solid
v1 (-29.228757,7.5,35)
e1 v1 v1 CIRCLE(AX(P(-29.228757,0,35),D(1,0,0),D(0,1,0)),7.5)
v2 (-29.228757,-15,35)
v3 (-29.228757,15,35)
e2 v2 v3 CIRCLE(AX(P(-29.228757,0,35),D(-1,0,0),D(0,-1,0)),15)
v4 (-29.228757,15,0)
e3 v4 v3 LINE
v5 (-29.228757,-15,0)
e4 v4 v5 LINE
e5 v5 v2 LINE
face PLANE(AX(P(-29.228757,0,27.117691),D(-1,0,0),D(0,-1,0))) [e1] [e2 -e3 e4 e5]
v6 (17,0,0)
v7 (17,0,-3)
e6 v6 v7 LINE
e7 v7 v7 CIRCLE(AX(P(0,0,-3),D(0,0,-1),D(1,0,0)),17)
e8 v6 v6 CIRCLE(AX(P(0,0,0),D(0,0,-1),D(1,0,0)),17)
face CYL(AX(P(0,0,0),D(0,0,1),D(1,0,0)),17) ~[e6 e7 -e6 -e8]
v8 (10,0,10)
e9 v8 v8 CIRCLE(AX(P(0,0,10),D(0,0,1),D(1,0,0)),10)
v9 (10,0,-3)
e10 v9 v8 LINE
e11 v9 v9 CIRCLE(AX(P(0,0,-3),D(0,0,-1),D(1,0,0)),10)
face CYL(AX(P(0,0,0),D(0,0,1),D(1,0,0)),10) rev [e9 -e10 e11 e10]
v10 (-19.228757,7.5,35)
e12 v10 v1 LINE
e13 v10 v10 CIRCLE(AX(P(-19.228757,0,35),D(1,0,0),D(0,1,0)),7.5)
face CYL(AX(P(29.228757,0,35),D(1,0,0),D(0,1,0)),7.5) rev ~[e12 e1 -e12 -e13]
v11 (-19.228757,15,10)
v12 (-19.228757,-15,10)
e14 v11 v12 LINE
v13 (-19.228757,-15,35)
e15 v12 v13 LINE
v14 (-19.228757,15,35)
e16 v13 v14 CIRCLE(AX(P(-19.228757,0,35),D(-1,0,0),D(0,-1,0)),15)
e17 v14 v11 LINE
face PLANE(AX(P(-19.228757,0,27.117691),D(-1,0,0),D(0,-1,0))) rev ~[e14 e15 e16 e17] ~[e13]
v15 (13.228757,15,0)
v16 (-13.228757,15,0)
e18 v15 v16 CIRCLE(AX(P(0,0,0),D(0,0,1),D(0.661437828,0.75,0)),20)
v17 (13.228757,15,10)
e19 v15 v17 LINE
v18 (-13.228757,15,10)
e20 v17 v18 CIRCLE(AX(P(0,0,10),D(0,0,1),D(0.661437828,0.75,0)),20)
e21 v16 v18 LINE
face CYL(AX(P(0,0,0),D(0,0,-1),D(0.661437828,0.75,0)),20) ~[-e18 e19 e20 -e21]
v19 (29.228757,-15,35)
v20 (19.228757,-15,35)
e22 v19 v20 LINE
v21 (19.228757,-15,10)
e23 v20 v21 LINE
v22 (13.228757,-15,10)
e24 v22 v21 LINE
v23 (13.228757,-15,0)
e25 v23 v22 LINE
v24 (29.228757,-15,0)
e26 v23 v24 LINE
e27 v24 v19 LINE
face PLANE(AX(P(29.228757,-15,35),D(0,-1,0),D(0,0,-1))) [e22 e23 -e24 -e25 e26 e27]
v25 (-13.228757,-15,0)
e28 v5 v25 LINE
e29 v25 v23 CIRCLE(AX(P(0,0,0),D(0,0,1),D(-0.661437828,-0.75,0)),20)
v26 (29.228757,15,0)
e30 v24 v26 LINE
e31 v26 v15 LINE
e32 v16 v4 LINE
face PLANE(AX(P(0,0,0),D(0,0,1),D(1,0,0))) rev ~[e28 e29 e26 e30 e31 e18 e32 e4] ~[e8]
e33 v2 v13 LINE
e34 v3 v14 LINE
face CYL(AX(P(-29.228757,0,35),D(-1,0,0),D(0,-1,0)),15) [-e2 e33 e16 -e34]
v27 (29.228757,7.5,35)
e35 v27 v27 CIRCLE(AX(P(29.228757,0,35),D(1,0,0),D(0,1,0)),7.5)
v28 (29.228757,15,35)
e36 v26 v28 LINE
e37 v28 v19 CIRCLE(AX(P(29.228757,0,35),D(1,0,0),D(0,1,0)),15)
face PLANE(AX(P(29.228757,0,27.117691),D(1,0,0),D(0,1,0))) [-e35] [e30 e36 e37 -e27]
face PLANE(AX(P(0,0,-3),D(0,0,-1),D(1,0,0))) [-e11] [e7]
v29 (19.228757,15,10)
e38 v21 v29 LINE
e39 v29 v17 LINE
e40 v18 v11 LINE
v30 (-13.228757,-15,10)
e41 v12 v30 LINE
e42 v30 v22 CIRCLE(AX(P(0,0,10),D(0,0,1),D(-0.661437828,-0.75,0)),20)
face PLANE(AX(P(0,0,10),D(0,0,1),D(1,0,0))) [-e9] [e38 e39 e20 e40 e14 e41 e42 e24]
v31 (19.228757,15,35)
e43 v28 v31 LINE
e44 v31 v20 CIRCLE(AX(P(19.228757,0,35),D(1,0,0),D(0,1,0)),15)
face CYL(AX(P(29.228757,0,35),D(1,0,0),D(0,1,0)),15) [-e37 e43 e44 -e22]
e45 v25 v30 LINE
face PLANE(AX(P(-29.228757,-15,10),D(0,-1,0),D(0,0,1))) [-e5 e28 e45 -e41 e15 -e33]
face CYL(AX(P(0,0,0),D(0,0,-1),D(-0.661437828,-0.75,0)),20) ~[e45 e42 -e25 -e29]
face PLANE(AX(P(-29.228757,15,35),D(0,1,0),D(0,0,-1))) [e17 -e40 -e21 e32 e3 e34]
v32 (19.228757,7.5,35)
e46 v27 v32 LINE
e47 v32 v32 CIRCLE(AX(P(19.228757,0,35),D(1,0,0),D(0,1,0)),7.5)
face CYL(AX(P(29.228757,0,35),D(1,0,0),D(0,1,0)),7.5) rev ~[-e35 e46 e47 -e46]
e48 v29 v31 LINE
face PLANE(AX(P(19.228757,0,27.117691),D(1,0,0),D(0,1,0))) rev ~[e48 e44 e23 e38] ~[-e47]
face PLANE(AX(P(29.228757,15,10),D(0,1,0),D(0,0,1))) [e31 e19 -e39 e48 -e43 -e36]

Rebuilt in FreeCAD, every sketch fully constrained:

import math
import FreeCAD as App
import Part
import Sketcher
from FreeCAD import Vector
Q = App.Units.Quantity

doc = App.newDocument("Part")
body = doc.addObject("PartDesign::Body", "Body")

# Sketch on XY plane
sketch1 = doc.addObject("Sketcher::SketchObject", "Sketch")
body.addObject(sketch1)
sketch1.AttachmentSupport = (doc.XY_Plane, [""])
sketch1.MapMode = "FlatFace"
sketch1.addGeometry(Part.LineSegment(Vector(-29.228757, 15, 0), Vector(-29.228757, -15, 0)), False)
sketch1.addGeometry(Part.LineSegment(Vector(-29.228757, -15, 0), Vector(-13.228757, -15, 0)), False)
sketch1.addGeometry(Part.ArcOfCircle(Part.Circle(Vector(0, 0, 0), Vector(0, 0, 1), 20), math.radians(-131.409622), math.radians(-48.590378)), False)
sketch1.addGeometry(Part.LineSegment(Vector(13.228757, -15, 0), Vector(29.228757, -15, 0)), False)
sketch1.addGeometry(Part.LineSegment(Vector(29.228757, -15, 0), Vector(29.228757, 15, 0)), False)
sketch1.addGeometry(Part.LineSegment(Vector(29.228757, 15, 0), Vector(13.228757, 15, 0)), False)
sketch1.addGeometry(Part.ArcOfCircle(Part.Circle(Vector(0, 0, 0), Vector(0, 0, 1), 20), math.radians(48.590378), math.radians(131.409622)), False)
sketch1.addGeometry(Part.LineSegment(Vector(-13.228757, 15, 0), Vector(-29.228757, 15, 0)), False)
sketch1.addConstraint(Sketcher.Constraint("Coincident", 0, 2, 1, 1))
sketch1.addConstraint(Sketcher.Constraint("Coincident", 1, 2, 2, 1))
sketch1.addConstraint(Sketcher.Constraint("Coincident", 2, 2, 3, 1))
sketch1.addConstraint(Sketcher.Constraint("Coincident", 3, 2, 4, 1))
sketch1.addConstraint(Sketcher.Constraint("Coincident", 4, 2, 5, 1))
sketch1.addConstraint(Sketcher.Constraint("Coincident", 5, 2, 6, 1))
sketch1.addConstraint(Sketcher.Constraint("Coincident", 6, 2, 7, 1))
sketch1.addConstraint(Sketcher.Constraint("Coincident", 7, 2, 0, 1))
sketch1.addConstraint(Sketcher.Constraint("Vertical", 0))
sketch1.addConstraint(Sketcher.Constraint("Horizontal", 1))
sketch1.addConstraint(Sketcher.Constraint("Horizontal", 3))
sketch1.addConstraint(Sketcher.Constraint("Vertical", 4))
sketch1.addConstraint(Sketcher.Constraint("Horizontal", 5))
sketch1.addConstraint(Sketcher.Constraint("Horizontal", 7))
sketch1.addConstraint(Sketcher.Constraint("Coincident", 2, 3, -1, 1))
sketch1.addConstraint(Sketcher.Constraint("Coincident", 6, 3, -1, 1))
sketch1.addConstraint(Sketcher.Constraint("Equal", 2, 6))
sketch1.addConstraint(Sketcher.Constraint("Symmetric", 0, 2, 4, 2, -1, 1))
sketch1.addConstraint(Sketcher.Constraint("Horizontal", 1, 2, 2, 2))
sketch1.addConstraint(Sketcher.Constraint("Horizontal", 5, 2, 6, 2))
sketch1.addConstraint(Sketcher.Constraint("Radius", 2, Q("20 mm")))
sketch1.addConstraint(Sketcher.Constraint("DistanceX", 1, 1, 1, 2, Q("16 mm")))
sketch1.addConstraint(Sketcher.Constraint("DistanceY", 0, 2, 0, 1, Q("30 mm")))
pad1 = doc.addObject("PartDesign::Pad", "Pad")
body.addObject(pad1)
pad1.Profile = sketch1
pad1.Length = 10

# Sketch on YZ plane
sketch2 = doc.addObject("Sketcher::SketchObject", "Sketch001")
body.addObject(sketch2)
sketch2.AttachmentSupport = (doc.YZ_Plane, [""])
sketch2.MapMode = "FlatFace"
sketch2.AttachmentOffset = App.Placement(Vector(0, 0, 29.228757), App.Rotation())
sketch2.addGeometry(Part.LineSegment(Vector(-15, 35, 0), Vector(-15, 10, 0)), False)
sketch2.addGeometry(Part.LineSegment(Vector(-15, 10, 0), Vector(15, 10, 0)), False)
sketch2.addGeometry(Part.LineSegment(Vector(15, 10, 0), Vector(15, 35, 0)), False)
sketch2.addGeometry(Part.ArcOfCircle(Part.Circle(Vector(0, 35, 0), Vector(0, 0, 1), 15), math.radians(0), math.radians(180)), False)
sketch2.addConstraint(Sketcher.Constraint("Coincident", 0, 2, 1, 1))
sketch2.addConstraint(Sketcher.Constraint("Coincident", 1, 2, 2, 1))
sketch2.addConstraint(Sketcher.Constraint("Tangent", 2, 2, 3, 1))
sketch2.addConstraint(Sketcher.Constraint("Tangent", 3, 2, 0, 1))
sketch2.addConstraint(Sketcher.Constraint("Vertical", 0))
sketch2.addConstraint(Sketcher.Constraint("Horizontal", 1))
sketch2.addConstraint(Sketcher.Constraint("Vertical", 2))
sketch2.addConstraint(Sketcher.Constraint("PointOnObject", 3, 3, -2))
sketch2.addConstraint(Sketcher.Constraint("Radius", 3, Q("15 mm")))
sketch2.addConstraint(Sketcher.Constraint("DistanceY", 0, 2, 0, 1, Q("25 mm")))
sketch2.addConstraint(Sketcher.Constraint("DistanceY", -1, 1, 3, 3, Q("35 mm")))
pad2 = doc.addObject("PartDesign::Pad", "Pad001")
body.addObject(pad2)
pad2.Profile = sketch2
pad2.Length = 10
pad2.Reversed = True

# Sketch on YZ plane
sketch3 = doc.addObject("Sketcher::SketchObject", "Sketch002")
body.addObject(sketch3)
sketch3.AttachmentSupport = (doc.YZ_Plane, [""])
sketch3.MapMode = "FlatFace"
sketch3.AttachmentOffset = App.Placement(Vector(0, 0, -29.228757), App.Rotation())
sketch3.addGeometry(Part.LineSegment(Vector(15, 35, 0), Vector(15, 10, 0)), False)
sketch3.addGeometry(Part.LineSegment(Vector(15, 10, 0), Vector(-15, 10, 0)), False)
sketch3.addGeometry(Part.LineSegment(Vector(-15, 10, 0), Vector(-15, 35, 0)), False)
sketch3.addGeometry(Part.ArcOfCircle(Part.Circle(Vector(0, 35, 0), Vector(0, 0, 1), 15), math.radians(0), math.radians(180)), False)
sketch3.addConstraint(Sketcher.Constraint("Coincident", 0, 2, 1, 1))
sketch3.addConstraint(Sketcher.Constraint("Coincident", 1, 2, 2, 1))
sketch3.addConstraint(Sketcher.Constraint("Tangent", 2, 2, 3, 2))
sketch3.addConstraint(Sketcher.Constraint("Tangent", 3, 1, 0, 1))
sketch3.addConstraint(Sketcher.Constraint("Vertical", 0))
sketch3.addConstraint(Sketcher.Constraint("Horizontal", 1))
sketch3.addConstraint(Sketcher.Constraint("Vertical", 2))
sketch3.addConstraint(Sketcher.Constraint("PointOnObject", 3, 3, -2))
sketch3.addConstraint(Sketcher.Constraint("Radius", 3, Q("15 mm")))
sketch3.addConstraint(Sketcher.Constraint("DistanceY", 0, 2, 0, 1, Q("25 mm")))
sketch3.addConstraint(Sketcher.Constraint("DistanceY", -1, 1, 3, 3, Q("35 mm")))
pad3 = doc.addObject("PartDesign::Pad", "Pad002")
body.addObject(pad3)
pad3.Profile = sketch3
pad3.Length = 10

# Sketch on XY plane
sketch4 = doc.addObject("Sketcher::SketchObject", "Sketch003")
body.addObject(sketch4)
sketch4.AttachmentSupport = (doc.XY_Plane, [""])
sketch4.MapMode = "FlatFace"
sketch4.AttachmentOffset = App.Placement(Vector(0, 0, 10), App.Rotation())
sketch4.addGeometry(Part.Circle(Vector(0, 0, 0), Vector(0, 0, 1), 10), False)
sketch4.addConstraint(Sketcher.Constraint("Coincident", 0, 3, -1, 1))
sketch4.addConstraint(Sketcher.Constraint("Diameter", 0, Q("20 mm")))
pocket1 = doc.addObject("PartDesign::Pocket", "Pocket")
body.addObject(pocket1)
pocket1.Profile = sketch4
pocket1.Type = "ThroughAll"

# Sketch on XY plane
sketch5 = doc.addObject("Sketcher::SketchObject", "Sketch004")
body.addObject(sketch5)
sketch5.AttachmentSupport = (doc.XY_Plane, [""])
sketch5.MapMode = "FlatFace"
sketch5.addGeometry(Part.Circle(Vector(0, 0, 0), Vector(0, 0, 1), 17), False)
sketch5.addGeometry(Part.Circle(Vector(0, 0, 0), Vector(0, 0, 1), 10), False)
sketch5.addConstraint(Sketcher.Constraint("Coincident", 0, 3, -1, 1))
sketch5.addConstraint(Sketcher.Constraint("Coincident", 1, 3, -1, 1))
sketch5.addConstraint(Sketcher.Constraint("Diameter", 0, Q("34 mm")))
sketch5.addConstraint(Sketcher.Constraint("Diameter", 1, Q("20 mm")))
pad4 = doc.addObject("PartDesign::Pad", "Pad003")
body.addObject(pad4)
pad4.Profile = sketch5
pad4.Length = 3
pad4.Reversed = True

# Sketch on YZ plane
sketch6 = doc.addObject("Sketcher::SketchObject", "Sketch005")
body.addObject(sketch6)
sketch6.AttachmentSupport = (doc.YZ_Plane, [""])
sketch6.MapMode = "FlatFace"
sketch6.AttachmentOffset = App.Placement(Vector(0, 0, 29.228757), App.Rotation())
sketch6.addGeometry(Part.Circle(Vector(0, 35, 0), Vector(0, 0, 1), 7.5), False)
sketch6.addConstraint(Sketcher.Constraint("PointOnObject", 0, 3, -2))
sketch6.addConstraint(Sketcher.Constraint("Diameter", 0, Q("15 mm")))
sketch6.addConstraint(Sketcher.Constraint("DistanceY", -1, 1, 0, 3, Q("35 mm")))
pocket2 = doc.addObject("PartDesign::Pocket", "Pocket001")
body.addObject(pocket2)
pocket2.Profile = sketch6
pocket2.Type = "ThroughAll"

doc.recompute()
